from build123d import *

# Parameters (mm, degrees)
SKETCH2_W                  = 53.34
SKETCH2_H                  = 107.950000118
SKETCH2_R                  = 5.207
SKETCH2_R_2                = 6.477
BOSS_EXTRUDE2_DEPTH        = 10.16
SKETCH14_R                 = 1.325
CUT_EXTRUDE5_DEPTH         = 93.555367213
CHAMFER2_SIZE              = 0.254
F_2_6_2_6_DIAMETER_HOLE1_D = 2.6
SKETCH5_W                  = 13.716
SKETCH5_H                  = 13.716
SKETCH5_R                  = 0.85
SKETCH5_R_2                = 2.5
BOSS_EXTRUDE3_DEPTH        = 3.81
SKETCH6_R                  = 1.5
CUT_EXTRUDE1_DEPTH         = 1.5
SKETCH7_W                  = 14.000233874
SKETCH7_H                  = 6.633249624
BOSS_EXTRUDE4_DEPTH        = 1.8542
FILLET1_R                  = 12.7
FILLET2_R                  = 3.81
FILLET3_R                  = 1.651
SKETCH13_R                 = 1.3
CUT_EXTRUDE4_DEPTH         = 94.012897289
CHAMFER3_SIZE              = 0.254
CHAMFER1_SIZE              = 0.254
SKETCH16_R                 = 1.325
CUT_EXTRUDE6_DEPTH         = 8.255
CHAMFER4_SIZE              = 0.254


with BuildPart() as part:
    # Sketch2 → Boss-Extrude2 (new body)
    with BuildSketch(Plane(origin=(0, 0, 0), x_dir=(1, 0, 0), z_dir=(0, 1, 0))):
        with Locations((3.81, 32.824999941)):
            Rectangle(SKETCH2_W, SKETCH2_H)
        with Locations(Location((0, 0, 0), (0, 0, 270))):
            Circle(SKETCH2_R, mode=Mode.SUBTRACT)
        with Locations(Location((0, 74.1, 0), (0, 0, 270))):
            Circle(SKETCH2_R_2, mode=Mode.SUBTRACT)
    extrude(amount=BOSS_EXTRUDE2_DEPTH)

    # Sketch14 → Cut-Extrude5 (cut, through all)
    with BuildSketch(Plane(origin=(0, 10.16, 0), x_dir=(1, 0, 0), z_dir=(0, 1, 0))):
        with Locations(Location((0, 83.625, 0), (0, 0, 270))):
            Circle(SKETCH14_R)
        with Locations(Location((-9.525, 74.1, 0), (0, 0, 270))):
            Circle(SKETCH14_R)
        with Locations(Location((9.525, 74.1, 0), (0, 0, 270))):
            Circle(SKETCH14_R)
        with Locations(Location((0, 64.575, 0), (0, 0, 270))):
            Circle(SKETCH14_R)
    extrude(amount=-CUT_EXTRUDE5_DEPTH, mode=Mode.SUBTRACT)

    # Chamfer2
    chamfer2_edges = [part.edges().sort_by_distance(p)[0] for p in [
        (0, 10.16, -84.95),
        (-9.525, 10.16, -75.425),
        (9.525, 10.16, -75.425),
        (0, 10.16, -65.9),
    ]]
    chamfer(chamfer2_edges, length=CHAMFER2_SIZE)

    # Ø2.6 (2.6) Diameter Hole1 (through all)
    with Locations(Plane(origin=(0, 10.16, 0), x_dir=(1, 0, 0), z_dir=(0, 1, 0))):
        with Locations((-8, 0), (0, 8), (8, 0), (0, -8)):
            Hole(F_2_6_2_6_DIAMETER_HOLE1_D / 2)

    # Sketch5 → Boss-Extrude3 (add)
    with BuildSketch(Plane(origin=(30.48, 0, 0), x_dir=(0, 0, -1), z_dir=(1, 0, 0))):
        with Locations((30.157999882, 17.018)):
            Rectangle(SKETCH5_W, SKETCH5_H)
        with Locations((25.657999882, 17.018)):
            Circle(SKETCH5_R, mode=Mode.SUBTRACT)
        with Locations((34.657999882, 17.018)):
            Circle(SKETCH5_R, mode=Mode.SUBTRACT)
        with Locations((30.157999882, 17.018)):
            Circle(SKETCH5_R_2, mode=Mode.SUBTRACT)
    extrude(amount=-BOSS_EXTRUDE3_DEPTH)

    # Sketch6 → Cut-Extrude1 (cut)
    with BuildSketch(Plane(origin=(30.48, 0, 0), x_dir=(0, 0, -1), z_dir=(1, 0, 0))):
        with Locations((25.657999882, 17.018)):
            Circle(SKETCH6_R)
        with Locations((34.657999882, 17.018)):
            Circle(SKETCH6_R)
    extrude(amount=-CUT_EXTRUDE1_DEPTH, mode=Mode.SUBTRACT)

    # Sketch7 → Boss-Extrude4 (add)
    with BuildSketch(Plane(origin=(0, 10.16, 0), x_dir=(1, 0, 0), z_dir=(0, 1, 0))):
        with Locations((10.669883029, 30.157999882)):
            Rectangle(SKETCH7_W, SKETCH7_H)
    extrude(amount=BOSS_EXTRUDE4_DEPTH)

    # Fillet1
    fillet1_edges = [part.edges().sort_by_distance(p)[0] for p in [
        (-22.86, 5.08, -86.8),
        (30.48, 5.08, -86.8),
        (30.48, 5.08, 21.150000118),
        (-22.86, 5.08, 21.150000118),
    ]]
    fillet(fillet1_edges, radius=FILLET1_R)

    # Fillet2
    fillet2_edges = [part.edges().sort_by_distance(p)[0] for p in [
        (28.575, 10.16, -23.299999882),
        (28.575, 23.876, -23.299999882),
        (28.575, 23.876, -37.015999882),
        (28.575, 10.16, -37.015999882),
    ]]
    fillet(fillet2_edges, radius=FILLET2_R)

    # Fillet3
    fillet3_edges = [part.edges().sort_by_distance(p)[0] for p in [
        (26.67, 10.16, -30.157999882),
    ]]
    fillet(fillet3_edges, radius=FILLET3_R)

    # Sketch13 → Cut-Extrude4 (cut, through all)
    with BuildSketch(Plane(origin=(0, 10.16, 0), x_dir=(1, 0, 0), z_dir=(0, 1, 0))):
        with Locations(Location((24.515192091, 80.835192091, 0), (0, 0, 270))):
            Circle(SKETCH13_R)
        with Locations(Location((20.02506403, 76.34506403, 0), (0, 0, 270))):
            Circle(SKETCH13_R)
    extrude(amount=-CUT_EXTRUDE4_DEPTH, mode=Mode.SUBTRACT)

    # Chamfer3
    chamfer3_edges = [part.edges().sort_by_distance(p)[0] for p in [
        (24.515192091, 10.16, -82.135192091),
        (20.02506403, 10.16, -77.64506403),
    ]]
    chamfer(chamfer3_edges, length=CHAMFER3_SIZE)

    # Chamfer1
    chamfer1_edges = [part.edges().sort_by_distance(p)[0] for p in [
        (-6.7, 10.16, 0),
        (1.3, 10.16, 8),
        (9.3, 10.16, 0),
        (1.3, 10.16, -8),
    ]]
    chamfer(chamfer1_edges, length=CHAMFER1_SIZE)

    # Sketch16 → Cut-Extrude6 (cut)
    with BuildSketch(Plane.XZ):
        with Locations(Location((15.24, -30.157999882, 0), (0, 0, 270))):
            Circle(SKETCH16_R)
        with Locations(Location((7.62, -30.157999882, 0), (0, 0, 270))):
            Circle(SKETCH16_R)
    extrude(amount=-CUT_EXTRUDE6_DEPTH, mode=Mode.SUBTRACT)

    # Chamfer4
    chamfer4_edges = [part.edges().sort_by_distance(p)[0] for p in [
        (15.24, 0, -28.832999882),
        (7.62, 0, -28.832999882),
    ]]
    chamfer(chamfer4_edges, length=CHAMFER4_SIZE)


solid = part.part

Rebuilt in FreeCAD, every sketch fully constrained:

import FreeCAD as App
import Part
import Sketcher

V = App.Vector
Q = App.Units.Quantity


def edges_at(feature, points):
    """Names of the edges that pass closest to the given points."""
    edges = feature.Shape.Edges
    near = lambda p: min(range(len(edges)), key=lambda i: edges[i].distToShape(Part.Vertex(*p))[0])
    return sorted({f"Edge{near(p) + 1}" for p in points})


def add_polygon(sketch, points):
    """Adds a closed chain of lines whose ends are joined by coincident constraints."""
    first, n = sketch.GeometryCount, len(points)
    for a, b in zip(points, points[1:] + points[:1]):
        sketch.addGeometry(Part.LineSegment(App.Vector(*a, 0), App.Vector(*b, 0)), False)
    for i in range(n):
        sketch.addConstraint(Sketcher.Constraint("Coincident", first + i, 2, first + (i + 1) % n, 1))

doc = App.newDocument("Part")
params = doc.addObject("Spreadsheet::Sheet", "Params")
for row, (alias, value) in enumerate([
    ("sketch1_diameter", "0.41 in"),
    ("sketch1_diameter2", "0.51 in"),
    ("sketch1_width", "2.1 in"),
    ("sketch1_height", "4.25 in"),
    ("pad1_length", "0.4 in"),
    ("chamfer_size", "0.01 in"),
    ("hole_diameter", "2.6 mm"),
    ("sketch4_width", "0.54 in"),
    ("pad2_length", "0.15 in"),
    ("pocket2_length", "1.5 mm"),
    ("pad3_length", "0.073 in"),
    ("fillet_radius", "0.5 in"),
    ("fillet2_radius", "0.15 in"),
    ("fillet3_radius", "0.065 in"),
    ("chamfer2_size", "0.01 in"),
    ("chamfer3_size", "0.01 in"),
    ("pocket4_length", "0.325 in"),
    ("chamfer4_size", "0.01 in"),
], start=1):
    params.set(f"A{row}", alias)
    params.set(f"B{row}", "=" + value)
    params.setAlias(f"B{row}", alias)

body = doc.addObject("PartDesign::Body", "Body")

# Sketch on XZ plane
sketch1 = body.newObject("Sketcher::SketchObject", "Sketch")
sketch1.AttachmentSupport = (doc.getObject("XZ_Plane"), [""])
sketch1.MapMode = "FlatFace"
add_polygon(sketch1, [(-23, -87), (-23, 21), (30, 21), (30, -87)])  # lines 0-3
sketch1.addGeometry(Part.Circle(V(0, 0, 0), V(0, 0, 1), 5), False)  # 4
sketch1.addGeometry(Part.Circle(V(0, -74, 0), V(0, 0, 1), 6), False)  # 5
sketch1.addConstraint(Sketcher.Constraint("Vertical", 0))
sketch1.addConstraint(Sketcher.Constraint("Horizontal", 1))
sketch1.addConstraint(Sketcher.Constraint("Vertical", 2))
sketch1.addConstraint(Sketcher.Constraint("Horizontal", 3))
sketch1.addConstraint(Sketcher.Constraint("Coincident", 4, 3, -1, 1))
sketch1.addConstraint(Sketcher.Constraint("PointOnObject", 5, 3, -2))
sketch1.addConstraint(Sketcher.Constraint("Diameter", 4, Q("0.41 in")))
sketch1.addConstraint(Sketcher.Constraint("Diameter", 5, Q("0.51 in")))
sketch1.addConstraint(Sketcher.Constraint("DistanceX", 1, 1, 1, 2, Q("2.1 in")))
sketch1.addConstraint(Sketcher.Constraint("DistanceY", 0, 1, 0, 2, Q("4.25 in")))
sketch1.addConstraint(Sketcher.Constraint("DistanceX", 0, 2, -1, 1, Q("0.9 in")))
sketch1.addConstraint(Sketcher.Constraint("DistanceY", 2, 2, 5, 3, Q("0.5 in")))
sketch1.addConstraint(Sketcher.Constraint("DistanceY", 5, 3, -1, 1, 74.1))
sketch1.setExpression("Constraints[10]", "Params.sketch1_diameter")
sketch1.setExpression("Constraints[11]", "Params.sketch1_diameter2")
sketch1.setExpression("Constraints[12]", "Params.sketch1_width")
sketch1.setExpression("Constraints[13]", "Params.sketch1_height")
pad1 = body.newObject("PartDesign::Pad", "Pad")
pad1.Profile = sketch1
pad1.setExpression("Length", "Params.pad1_length")
pad1.Reversed = True

# Sketch on XZ plane
sketch2 = body.newObject("Sketcher::SketchObject", "Sketch001")
sketch2.AttachmentSupport = (doc.getObject("XZ_Plane"), [""])
sketch2.MapMode = "FlatFace"
sketch2.AttachmentOffset = App.Placement(V(0, 0, -0.4 * 25.4), App.Rotation())
sketch2.addGeometry(Part.Circle(V(0, -83.6, 0), V(0, 0, 1), 1.3), False)
sketch2.addGeometry(Part.Circle(V(-9.5, -74.1, 0), V(0, 0, 1), 1.3), False)
sketch2.addGeometry(Part.Circle(V(9.5, -74.1, 0), V(0, 0, 1), 1.3), False)
sketch2.addGeometry(Part.Circle(V(0, -64.6, 0), V(0, 0, 1), 1.3), False)
sketch2.addConstraint(Sketcher.Constraint("Equal", 0, 1))
sketch2.addConstraint(Sketcher.Constraint("Equal", 1, 2))
sketch2.addConstraint(Sketcher.Constraint("Equal", 2, 3))
sketch2.addConstraint(Sketcher.Constraint("Symmetric", 1, 3, 2, 3, -2))
sketch2.addConstraint(Sketcher.Constraint("PointOnObject", 0, 3, -2))
sketch2.addConstraint(Sketcher.Constraint("PointOnObject", 3, 3, -2))
sketch2.addConstraint(Sketcher.Constraint("Diameter", 0, 2.65))
sketch2.addConstraint(Sketcher.Constraint("DistanceX", 1, 3, 2, 3, Q("0.75 in")))
sketch2.addConstraint(Sketcher.Constraint("DistanceY", 0, 3, 3, 3, Q("0.75 in")))
sketch2.addConstraint(Sketcher.Constraint("DistanceY", 0, 3, 1, 3, Q("0.375 in")))
sketch2.addConstraint(Sketcher.Constraint("DistanceY", 0, 3, -1, 1, 83.625))
pocket1 = body.newObject("PartDesign::Pocket", "Pocket")
pocket1.Profile = sketch2
pocket1.Type = "ThroughAll"
pocket1.Reversed = True
doc.recompute()

chamfer = body.newObject("PartDesign::Chamfer", "Chamfer")
chamfer.Base = (pocket1, edges_at(pocket1, [
    (0, 10.16, -84.95),
    (-9.525, 10.16, -75.425),
    (9.525, 10.16, -75.425),
    (0, 10.16, -65.9),
]))
chamfer.setExpression("Size", "Params.chamfer_size")

# Sketch on XZ plane
sketch3 = body.newObject("Sketcher::SketchObject", "Sketch002")
sketch3.AttachmentSupport = (doc.getObject("XZ_Plane"), [""])
sketch3.MapMode = "FlatFace"
sketch3.AttachmentOffset = App.Placement(V(0, 0, -0.4 * 25.4), App.Rotation())
sketch3.addGeometry(Part.Circle(V(-8, 0, 0), V(0, 0, 1), 1.3), False)
sketch3.addGeometry(Part.Circle(V(0, -8, 0), V(0, 0, 1), 1.3), False)
sketch3.addGeometry(Part.Circle(V(8, 0, 0), V(0, 0, 1), 1.3), False)
sketch3.addGeometry(Part.Circle(V(0, 8, 0), V(0, 0, 1), 1.3), False)
sketch3.addConstraint(Sketcher.Constraint("Equal", 0, 1))
sketch3.addConstraint(Sketcher.Constraint("Equal", 1, 2))
sketch3.addConstraint(Sketcher.Constraint("Equal", 2, 3))
sketch3.addConstraint(Sketcher.Constraint("Symmetric", 0, 3, 2, 3, -1, 1))
sketch3.addConstraint(Sketcher.Constraint("Symmetric", 1, 3, 3, 3, -1, 1))
sketch3.addConstraint(Sketcher.Constraint("PointOnObject", 0, 3, -1))
sketch3.addConstraint(Sketcher.Constraint("PointOnObject", 1, 3, -2))
sketch3.addConstraint(Sketcher.Constraint("Diameter", 0, 2.6))
sketch3.addConstraint(Sketcher.Constraint("DistanceX", 0, 3, -1, 1, 8.0))
sketch3.addConstraint(Sketcher.Constraint("DistanceY", 1, 3, -1, 1, 8.0))
doc.recompute()
hole = body.newObject("PartDesign::Hole", "Hole")
hole.Profile = sketch3
hole.ThreadType = "None"
hole.setExpression("Diameter", "Params.hole_diameter")
hole.DepthType = "ThroughAll"
hole.Reversed = True

# Sketch on YZ plane
sketch4 = body.newObject("Sketcher::SketchObject", "Sketch003")
sketch4.AttachmentSupport = (doc.getObject("YZ_Plane"), [""])
sketch4.MapMode = "FlatFace"
sketch4.AttachmentOffset = App.Placement(V(0, 0, 1.2 * 25.4), App.Rotation())
add_polygon(sketch4, [(23.9, -23.3), (10.2, -23.3), (10.2, -37), (23.9, -37)])  # lines 0-3
sketch4.addGeometry(Part.Circle(V(17, -25.7, 0), V(0, 0, 1), 0.8), False)  # 4
sketch4.addGeometry(Part.Circle(V(17, -30.2, 0), V(0, 0, 1), 2.5), False)  # 5
sketch4.addGeometry(Part.Circle(V(17, -34.7, 0), V(0, 0, 1), 0.8), False)  # 6
sketch4.addConstraint(Sketcher.Constraint("Horizontal", 0))
sketch4.addConstraint(Sketcher.Constraint("Vertical", 1))
sketch4.addConstraint(Sketcher.Constraint("Horizontal", 2))
sketch4.addConstraint(Sketcher.Constraint("Vertical", 3))
sketch4.addConstraint(Sketcher.Constraint("Equal", 4, 6))
sketch4.addConstraint(Sketcher.Constraint("Vertical", 4, 3, 5, 3))
sketch4.addConstraint(Sketcher.Constraint("Vertical", 5, 3, 6, 3))
sketch4.addConstraint(Sketcher.Constraint("Equal", 2, 1))
sketch4.addConstraint(Sketcher.Constraint("DistanceX", 0, 2, 0, 1, Q("0.54 in")))
sketch4.addConstraint(Sketcher.Constraint("DistanceX", -1, 1, 0, 2, Q("0.4 in")))
sketch4.addConstraint(Sketcher.Constraint("Diameter", 4, 1.7))
sketch4.addConstraint(Sketcher.Constraint("Diameter", 5, 5.0))
sketch4.addConstraint(Sketcher.Constraint("DistanceX", -1, 1, 4, 3, Q("0.67 in")))
sketch4.addConstraint(Sketcher.Constraint("DistanceY", 5, 3, 0, 2, Q("0.27 in")))
sketch4.addConstraint(Sketcher.Constraint("DistanceY", 4, 3, -1, 1, 25.658))
sketch4.addConstraint(Sketcher.Constraint("DistanceY", 5, 3, -1, 1, 30.158))
sketch4.addConstraint(Sketcher.Constraint("DistanceY", 6, 3, -1, 1, 34.658))
sketch4.setExpression("Constraints[12]", "Params.sketch4_width")
pad2 = body.newObject("PartDesign::Pad", "Pad001")
pad2.Profile = sketch4
pad2.setExpression("Length", "Params.pad2_length")
pad2.Reversed = True

# Sketch on YZ plane
sketch5 = body.newObject("Sketcher::SketchObject", "Sketch004")
sketch5.AttachmentSupport = (doc.getObject("YZ_Plane"), [""])
sketch5.MapMode = "FlatFace"
sketch5.AttachmentOffset = App.Placement(V(0, 0, 1.2 * 25.4), App.Rotation())
sketch5.addGeometry(Part.Circle(V(17, -25.7, 0), V(0, 0, 1), 1.5), False)
sketch5.addGeometry(Part.Circle(V(17, -34.7, 0), V(0, 0, 1), 1.5), False)
sketch5.addConstraint(Sketcher.Constraint("Equal", 0, 1))
sketch5.addConstraint(Sketcher.Constraint("Vertical", 0, 3, 1, 3))
sketch5.addConstraint(Sketcher.Constraint("Diameter", 0, 3.0))
sketch5.addConstraint(Sketcher.Constraint("DistanceX", -1, 1, 0, 3, Q("0.67 in")))
sketch5.addConstraint(Sketcher.Constraint("DistanceY", 0, 3, -1, 1, 25.658))
sketch5.addConstraint(Sketcher.Constraint("DistanceY", 1, 3, -1, 1, 34.658))
pocket2 = body.newObject("PartDesign::Pocket", "Pocket001")
pocket2.Profile = sketch5
pocket2.setExpression("Length", "Params.pocket2_length")

# Sketch on XZ plane
sketch6 = body.newObject("Sketcher::SketchObject", "Sketch005")
sketch6.AttachmentSupport = (doc.getObject("XZ_Plane"), [""])
sketch6.MapMode = "FlatFace"
sketch6.AttachmentOffset = App.Placement(V(0, 0, -0.4 * 25.4), App.Rotation())
add_polygon(sketch6, [(4, -33), (4, -27), (18, -27), (18, -33)])  # lines 0-3
sketch6.addConstraint(Sketcher.Constraint("Vertical", 0))
sketch6.addConstraint(Sketcher.Constraint("Horizontal", 1))
sketch6.addConstraint(Sketcher.Constraint("Vertical", 2))
sketch6.addConstraint(Sketcher.Constraint("Horizontal", 3))
sketch6.addConstraint(Sketcher.Constraint("DistanceY", 0, 1, 0, 2, 6.63325))
sketch6.addConstraint(Sketcher.Constraint("DistanceX", -1, 1, 1, 2, 17.67))
sketch6.addConstraint(Sketcher.Constraint("DistanceX", 1, 1, 1, 2, 14.000234))
sketch6.addConstraint(Sketcher.Constraint("DistanceY", 0, 2, -1, 1, 26.841375))
pad3 = body.newObject("PartDesign::Pad", "Pad002")
pad3.Profile = sketch6
pad3.setExpression("Length", "Params.pad3_length")
pad3.Reversed = True
doc.recompute()

fillet = body.newObject("PartDesign::Fillet", "Fillet")
fillet.Base = (pad3, edges_at(pad3, [
    (-22.86, 5.08, -86.8),
    (30.48, 5.08, -86.8),
    (30.48, 5.08, 21.15),
    (-22.86, 5.08, 21.15),
]))
fillet.setExpression("Radius", "Params.fillet_radius")
doc.recompute()

fillet2 = body.newObject("PartDesign::Fillet", "Fillet001")
fillet2.Base = (fillet, edges_at(fillet, [
    (28.575, 10.16, -23.3),
    (28.575, 23.876, -23.3),
    (28.575, 23.876, -37.016),
    (28.575, 10.16, -37.016),
]))
fillet2.setExpression("Radius", "Params.fillet2_radius")
doc.recompute()

fillet3 = body.newObject("PartDesign::Fillet", "Fillet002")
fillet3.Base = (fillet2, edges_at(fillet2, [(26.67, 10.16, -30.158)]))
fillet3.setExpression("Radius", "Params.fillet3_radius")

# Sketch on XZ plane
sketch7 = body.newObject("Sketcher::SketchObject", "Sketch006")
sketch7.AttachmentSupport = (doc.getObject("XZ_Plane"), [""])
sketch7.MapMode = "FlatFace"
sketch7.AttachmentOffset = App.Placement(V(0, 0, -0.4 * 25.4), App.Rotation())
sketch7.addGeometry(Part.Circle(V(24.5, -80.8, 0), V(0, 0, 1), 1.3), False)
sketch7.addGeometry(Part.Circle(V(20, -76.3, 0), V(0, 0, 1), 1.3), False)
sketch7.addConstraint(Sketcher.Constraint("Equal", 0, 1))
sketch7.addConstraint(Sketcher.Constraint("Diameter", 0, 2.6))
sketch7.addConstraint(Sketcher.Constraint("DistanceX", 1, 3, 0, 3, 4.490128))
sketch7.addConstraint(Sketcher.Constraint("DistanceY", 0, 3, 1, 3, 4.490128))
sketch7.addConstraint(Sketcher.Constraint("DistanceX", -1, 1, 0, 3, 24.515192))
sketch7.addConstraint(Sketcher.Constraint("DistanceY", 0, 3, -1, 1, 80.835192))
pocket3 = body.newObject("PartDesign::Pocket", "Pocket002")
pocket3.Profile = sketch7
pocket3.Type = "ThroughAll"
pocket3.Reversed = True
doc.recompute()

chamfer2 = body.newObject("PartDesign::Chamfer", "Chamfer001")
chamfer2.Base = (pocket3, edges_at(pocket3, [(24.515, 10.16, -82.135), (20.025, 10.16, -77.645)]))
chamfer2.setExpression("Size", "Params.chamfer2_size")
doc.recompute()

chamfer3 = body.newObject("PartDesign::Chamfer", "Chamfer002")
chamfer3.Base = (chamfer2, edges_at(chamfer2, [
    (-6.7, 10.16, 0),
    (1.3, 10.16, 8),
    (9.3, 10.16, 0),
    (1.3, 10.16, -8),
]))
chamfer3.setExpression("Size", "Params.chamfer3_size")

# Sketch on XZ plane
sketch8 = body.newObject("Sketcher::SketchObject", "Sketch007")
sketch8.AttachmentSupport = (doc.getObject("XZ_Plane"), [""])
sketch8.MapMode = "FlatFace"
sketch8.addGeometry(Part.Circle(V(15.2, -30.2, 0), V(0, 0, 1), 1.3), False)
sketch8.addGeometry(Part.Circle(V(7.6, -30.2, 0), V(0, 0, 1), 1.3), False)
sketch8.addConstraint(Sketcher.Constraint("Equal", 0, 1))
sketch8.addConstraint(Sketcher.Constraint("Horizontal", 0, 3, 1, 3))
sketch8.addConstraint(Sketcher.Constraint("DistanceX", -1, 1, 0, 3, Q("0.6 in")))
sketch8.addConstraint(Sketcher.Constraint("DistanceX", -1, 1, 1, 3, Q("0.3 in")))
sketch8.addConstraint(Sketcher.Constraint("Diameter", 0, 2.65))
sketch8.addConstraint(Sketcher.Constraint("DistanceY", 0, 3, -1, 1, 30.158))
pocket4 = body.newObject("PartDesign::Pocket", "Pocket003")
pocket4.Profile = sketch8
pocket4.setExpression("Length", "Params.pocket4_length")
doc.recompute()

chamfer4 = body.newObject("PartDesign::Chamfer", "Chamfer003")
chamfer4.Base = (pocket4, edges_at(pocket4, [(15.24, 0, -28.833), (7.62, 0, -28.833)]))
chamfer4.setExpression("Size", "Params.chamfer4_size")

doc.recompute()
